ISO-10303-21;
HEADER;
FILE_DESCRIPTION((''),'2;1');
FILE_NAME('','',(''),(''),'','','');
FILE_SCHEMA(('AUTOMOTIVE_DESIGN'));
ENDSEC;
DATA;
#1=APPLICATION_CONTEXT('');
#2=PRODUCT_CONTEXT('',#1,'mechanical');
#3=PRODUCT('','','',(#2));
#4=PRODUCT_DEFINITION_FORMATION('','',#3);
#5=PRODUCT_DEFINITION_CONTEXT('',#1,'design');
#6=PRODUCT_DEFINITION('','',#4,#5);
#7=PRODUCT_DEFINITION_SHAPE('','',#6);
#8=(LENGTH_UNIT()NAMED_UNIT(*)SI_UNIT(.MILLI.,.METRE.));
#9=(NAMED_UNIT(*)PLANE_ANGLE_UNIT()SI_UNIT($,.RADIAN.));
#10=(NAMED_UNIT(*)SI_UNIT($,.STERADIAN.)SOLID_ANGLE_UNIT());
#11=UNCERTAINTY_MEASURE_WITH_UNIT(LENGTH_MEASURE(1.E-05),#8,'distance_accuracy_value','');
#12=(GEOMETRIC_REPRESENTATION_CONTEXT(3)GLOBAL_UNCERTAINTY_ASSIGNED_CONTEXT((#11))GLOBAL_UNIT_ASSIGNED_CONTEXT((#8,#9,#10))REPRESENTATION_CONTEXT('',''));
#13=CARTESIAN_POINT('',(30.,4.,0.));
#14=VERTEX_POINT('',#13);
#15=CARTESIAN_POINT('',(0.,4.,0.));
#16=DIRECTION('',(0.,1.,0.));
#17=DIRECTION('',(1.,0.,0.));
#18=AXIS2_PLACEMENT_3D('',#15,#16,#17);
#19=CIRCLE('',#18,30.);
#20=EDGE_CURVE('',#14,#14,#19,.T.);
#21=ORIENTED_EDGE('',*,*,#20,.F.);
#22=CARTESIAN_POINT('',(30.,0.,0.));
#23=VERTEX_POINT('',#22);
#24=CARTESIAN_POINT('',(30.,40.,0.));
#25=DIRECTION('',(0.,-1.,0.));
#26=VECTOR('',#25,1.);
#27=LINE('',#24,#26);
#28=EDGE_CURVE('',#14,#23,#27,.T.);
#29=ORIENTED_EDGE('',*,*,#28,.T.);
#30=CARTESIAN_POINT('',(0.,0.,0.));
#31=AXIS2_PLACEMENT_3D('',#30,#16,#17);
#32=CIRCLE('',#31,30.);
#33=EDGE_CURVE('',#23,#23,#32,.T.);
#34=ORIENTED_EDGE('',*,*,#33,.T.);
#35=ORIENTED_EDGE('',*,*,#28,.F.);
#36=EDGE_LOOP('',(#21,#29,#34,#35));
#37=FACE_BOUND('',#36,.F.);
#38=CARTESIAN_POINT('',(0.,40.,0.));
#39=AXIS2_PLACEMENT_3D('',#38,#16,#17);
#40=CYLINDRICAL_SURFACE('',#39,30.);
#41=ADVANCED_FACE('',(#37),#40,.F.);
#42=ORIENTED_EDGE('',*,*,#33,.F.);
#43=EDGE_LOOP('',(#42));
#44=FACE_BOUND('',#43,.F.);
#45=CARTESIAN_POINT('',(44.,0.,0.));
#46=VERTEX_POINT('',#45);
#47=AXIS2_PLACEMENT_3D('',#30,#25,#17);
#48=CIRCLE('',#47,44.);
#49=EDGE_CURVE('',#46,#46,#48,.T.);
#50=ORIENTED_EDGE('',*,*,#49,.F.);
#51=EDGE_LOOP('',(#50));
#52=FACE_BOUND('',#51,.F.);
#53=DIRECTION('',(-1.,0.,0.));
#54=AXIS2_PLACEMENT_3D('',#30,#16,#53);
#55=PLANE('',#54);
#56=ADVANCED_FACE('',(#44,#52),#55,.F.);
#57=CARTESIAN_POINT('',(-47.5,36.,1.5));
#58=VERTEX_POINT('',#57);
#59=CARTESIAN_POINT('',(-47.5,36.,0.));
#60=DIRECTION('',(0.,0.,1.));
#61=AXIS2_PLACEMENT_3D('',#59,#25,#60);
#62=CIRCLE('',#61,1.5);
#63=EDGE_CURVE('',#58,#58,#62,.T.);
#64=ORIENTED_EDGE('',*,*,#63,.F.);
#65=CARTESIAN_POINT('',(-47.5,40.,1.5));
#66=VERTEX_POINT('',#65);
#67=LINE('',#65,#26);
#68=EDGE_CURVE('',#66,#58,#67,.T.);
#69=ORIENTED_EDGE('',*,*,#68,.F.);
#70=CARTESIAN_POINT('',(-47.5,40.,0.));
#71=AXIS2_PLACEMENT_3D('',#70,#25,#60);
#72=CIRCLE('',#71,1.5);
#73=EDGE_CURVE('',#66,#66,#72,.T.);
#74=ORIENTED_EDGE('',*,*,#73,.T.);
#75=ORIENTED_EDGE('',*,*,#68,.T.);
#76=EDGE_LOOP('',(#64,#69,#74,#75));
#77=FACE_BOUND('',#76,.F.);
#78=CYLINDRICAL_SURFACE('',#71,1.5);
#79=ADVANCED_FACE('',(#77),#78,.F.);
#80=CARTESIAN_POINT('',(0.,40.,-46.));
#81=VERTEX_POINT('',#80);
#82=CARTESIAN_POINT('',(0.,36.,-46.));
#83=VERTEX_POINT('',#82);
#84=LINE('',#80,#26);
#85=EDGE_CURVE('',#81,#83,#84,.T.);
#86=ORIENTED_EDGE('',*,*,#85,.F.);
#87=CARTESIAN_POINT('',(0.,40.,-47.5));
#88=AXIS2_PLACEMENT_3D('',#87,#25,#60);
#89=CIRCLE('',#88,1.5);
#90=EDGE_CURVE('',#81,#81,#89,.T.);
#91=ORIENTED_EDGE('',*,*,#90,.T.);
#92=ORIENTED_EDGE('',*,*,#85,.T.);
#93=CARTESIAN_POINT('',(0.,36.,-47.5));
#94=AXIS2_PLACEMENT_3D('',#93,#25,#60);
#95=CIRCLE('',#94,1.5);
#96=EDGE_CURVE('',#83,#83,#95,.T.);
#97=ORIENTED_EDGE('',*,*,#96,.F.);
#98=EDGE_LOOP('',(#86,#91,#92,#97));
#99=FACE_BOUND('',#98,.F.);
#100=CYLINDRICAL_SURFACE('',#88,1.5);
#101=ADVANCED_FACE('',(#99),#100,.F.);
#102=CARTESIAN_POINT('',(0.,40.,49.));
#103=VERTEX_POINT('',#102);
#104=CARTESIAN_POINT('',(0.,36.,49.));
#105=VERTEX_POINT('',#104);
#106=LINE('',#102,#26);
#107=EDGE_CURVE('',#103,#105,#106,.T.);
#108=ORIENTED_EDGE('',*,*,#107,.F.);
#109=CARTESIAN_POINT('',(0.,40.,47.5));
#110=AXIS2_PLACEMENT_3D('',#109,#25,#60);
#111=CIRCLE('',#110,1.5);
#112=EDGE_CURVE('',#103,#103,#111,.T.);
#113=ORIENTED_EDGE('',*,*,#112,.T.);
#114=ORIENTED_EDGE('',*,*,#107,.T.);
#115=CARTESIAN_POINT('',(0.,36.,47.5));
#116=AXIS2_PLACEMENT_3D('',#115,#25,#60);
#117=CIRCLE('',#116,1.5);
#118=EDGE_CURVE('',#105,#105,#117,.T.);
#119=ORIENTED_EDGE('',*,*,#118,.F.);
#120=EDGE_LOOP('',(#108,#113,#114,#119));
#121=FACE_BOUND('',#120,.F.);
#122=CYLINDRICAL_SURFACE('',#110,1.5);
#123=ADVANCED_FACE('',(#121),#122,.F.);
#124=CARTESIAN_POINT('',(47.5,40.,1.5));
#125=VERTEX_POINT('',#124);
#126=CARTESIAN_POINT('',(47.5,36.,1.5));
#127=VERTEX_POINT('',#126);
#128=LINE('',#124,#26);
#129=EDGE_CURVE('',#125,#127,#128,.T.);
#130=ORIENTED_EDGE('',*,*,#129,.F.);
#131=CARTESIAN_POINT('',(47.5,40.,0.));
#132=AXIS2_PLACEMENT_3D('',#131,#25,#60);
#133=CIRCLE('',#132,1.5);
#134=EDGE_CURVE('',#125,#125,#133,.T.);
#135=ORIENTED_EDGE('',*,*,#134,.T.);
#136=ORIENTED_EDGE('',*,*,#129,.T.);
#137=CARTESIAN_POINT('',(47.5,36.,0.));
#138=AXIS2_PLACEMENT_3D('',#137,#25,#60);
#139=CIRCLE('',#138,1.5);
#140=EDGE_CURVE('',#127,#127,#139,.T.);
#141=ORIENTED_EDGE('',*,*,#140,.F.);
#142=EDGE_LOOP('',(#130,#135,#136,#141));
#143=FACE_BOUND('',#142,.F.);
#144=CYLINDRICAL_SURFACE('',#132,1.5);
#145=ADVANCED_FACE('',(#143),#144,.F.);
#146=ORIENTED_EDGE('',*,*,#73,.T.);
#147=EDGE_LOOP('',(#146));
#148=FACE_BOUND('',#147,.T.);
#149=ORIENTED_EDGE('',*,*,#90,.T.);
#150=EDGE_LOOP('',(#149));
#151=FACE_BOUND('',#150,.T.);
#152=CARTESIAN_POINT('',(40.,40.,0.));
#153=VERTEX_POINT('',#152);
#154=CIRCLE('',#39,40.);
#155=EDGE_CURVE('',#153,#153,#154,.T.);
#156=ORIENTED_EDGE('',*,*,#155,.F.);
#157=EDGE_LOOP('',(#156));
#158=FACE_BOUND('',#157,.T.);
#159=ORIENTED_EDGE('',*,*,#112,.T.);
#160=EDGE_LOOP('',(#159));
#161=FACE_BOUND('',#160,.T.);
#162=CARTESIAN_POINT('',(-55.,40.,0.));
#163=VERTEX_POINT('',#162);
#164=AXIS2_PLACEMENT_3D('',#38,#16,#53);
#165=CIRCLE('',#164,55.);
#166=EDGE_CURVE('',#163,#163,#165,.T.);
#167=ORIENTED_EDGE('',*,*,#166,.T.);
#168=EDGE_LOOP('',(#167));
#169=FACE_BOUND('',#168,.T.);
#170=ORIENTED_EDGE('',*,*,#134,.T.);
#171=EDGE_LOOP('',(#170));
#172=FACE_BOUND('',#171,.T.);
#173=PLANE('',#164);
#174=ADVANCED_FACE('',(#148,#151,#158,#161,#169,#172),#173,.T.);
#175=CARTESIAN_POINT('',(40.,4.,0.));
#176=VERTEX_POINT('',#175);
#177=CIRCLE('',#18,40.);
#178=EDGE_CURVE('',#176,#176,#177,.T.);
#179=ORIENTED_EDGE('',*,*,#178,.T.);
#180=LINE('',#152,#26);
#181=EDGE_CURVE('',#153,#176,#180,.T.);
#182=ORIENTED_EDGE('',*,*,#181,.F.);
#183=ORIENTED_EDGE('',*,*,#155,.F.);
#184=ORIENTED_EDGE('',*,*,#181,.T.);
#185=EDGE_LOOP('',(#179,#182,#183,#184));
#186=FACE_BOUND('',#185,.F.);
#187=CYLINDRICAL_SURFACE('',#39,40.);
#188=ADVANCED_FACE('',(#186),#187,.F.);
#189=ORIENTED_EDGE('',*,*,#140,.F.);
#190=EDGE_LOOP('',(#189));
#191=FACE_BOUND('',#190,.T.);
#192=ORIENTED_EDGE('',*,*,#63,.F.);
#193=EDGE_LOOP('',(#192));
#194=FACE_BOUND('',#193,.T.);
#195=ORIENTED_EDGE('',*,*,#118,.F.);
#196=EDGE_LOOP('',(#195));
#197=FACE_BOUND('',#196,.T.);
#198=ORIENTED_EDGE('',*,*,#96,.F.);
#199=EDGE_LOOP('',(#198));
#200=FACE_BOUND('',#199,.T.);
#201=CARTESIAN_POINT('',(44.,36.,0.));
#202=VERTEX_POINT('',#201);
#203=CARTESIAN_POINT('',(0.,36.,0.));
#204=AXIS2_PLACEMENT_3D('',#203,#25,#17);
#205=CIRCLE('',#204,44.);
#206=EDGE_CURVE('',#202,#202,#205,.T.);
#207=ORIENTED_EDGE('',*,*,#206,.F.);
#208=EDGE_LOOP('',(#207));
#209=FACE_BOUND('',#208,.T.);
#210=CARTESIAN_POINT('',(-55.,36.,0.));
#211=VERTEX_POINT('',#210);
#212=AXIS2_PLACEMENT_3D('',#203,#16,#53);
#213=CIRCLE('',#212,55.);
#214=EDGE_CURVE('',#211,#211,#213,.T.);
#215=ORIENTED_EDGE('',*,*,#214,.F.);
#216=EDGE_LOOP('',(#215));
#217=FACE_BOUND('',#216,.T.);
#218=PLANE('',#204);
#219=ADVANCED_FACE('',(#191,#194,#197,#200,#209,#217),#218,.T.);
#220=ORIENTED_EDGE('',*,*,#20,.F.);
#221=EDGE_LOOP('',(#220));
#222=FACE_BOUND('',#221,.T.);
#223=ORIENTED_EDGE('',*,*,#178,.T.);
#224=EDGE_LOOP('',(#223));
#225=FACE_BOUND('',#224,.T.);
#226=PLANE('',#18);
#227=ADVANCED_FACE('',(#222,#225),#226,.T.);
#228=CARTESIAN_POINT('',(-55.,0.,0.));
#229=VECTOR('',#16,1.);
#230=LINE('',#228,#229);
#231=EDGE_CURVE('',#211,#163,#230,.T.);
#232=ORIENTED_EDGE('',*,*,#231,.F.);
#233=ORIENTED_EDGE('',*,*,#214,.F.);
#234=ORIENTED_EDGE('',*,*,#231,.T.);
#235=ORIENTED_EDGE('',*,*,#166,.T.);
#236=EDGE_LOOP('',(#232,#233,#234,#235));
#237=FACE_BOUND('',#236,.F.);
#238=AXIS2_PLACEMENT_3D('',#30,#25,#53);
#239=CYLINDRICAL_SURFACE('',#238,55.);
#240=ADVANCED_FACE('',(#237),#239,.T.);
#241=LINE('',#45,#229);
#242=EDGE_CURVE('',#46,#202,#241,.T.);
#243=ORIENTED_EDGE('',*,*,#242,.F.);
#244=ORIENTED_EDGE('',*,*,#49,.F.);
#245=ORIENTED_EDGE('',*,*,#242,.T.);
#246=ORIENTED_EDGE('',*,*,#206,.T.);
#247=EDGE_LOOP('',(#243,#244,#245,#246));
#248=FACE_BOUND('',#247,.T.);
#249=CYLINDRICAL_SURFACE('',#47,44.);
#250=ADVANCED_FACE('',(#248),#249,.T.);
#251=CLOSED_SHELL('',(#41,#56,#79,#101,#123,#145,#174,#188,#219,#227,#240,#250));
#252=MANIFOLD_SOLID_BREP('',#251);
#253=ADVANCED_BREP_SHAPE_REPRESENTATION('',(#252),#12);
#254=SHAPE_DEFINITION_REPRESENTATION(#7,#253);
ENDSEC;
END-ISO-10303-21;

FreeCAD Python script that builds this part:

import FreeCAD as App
import Part
import Sketcher
Q = App.Units.Quantity

doc = App.newDocument("Part")
body = doc.addObject("PartDesign::Body", "Body")

# Sketch on XZ plane
sketch1 = doc.addObject("Sketcher::SketchObject", "Sketch")
body.addObject(sketch1)
sketch1.AttachmentSupport = (doc.XZ_Plane, [""])
sketch1.MapMode = "FlatFace"
sketch1.addGeometry(Part.Circle(App.Vector(0, 0, 0), App.Vector(0, 0, 1), 55), False)
sketch1.addConstraint([
    Sketcher.Constraint("Coincident", 0, 3, -1, 1),
    Sketcher.Constraint("Diameter", 0, Q("110 mm")),
])
pad1 = doc.addObject("PartDesign::Pad", "Pad")
body.addObject(pad1)
pad1.Profile = sketch1
pad1.Length = 40
pad1.Reversed = True

# Sketch on XZ plane
sketch2 = doc.addObject("Sketcher::SketchObject", "Sketch001")
body.addObject(sketch2)
sketch2.AttachmentSupport = (doc.XZ_Plane, [""])
sketch2.MapMode = "FlatFace"
sketch2.addGeometry([
    Part.Circle(App.Vector(0, 0, 0), App.Vector(0, 0, 1), 55),
    Part.Circle(App.Vector(0, 0, 0), App.Vector(0, 0, 1), 44),
], False)
sketch2.addConstraint([
    Sketcher.Constraint("Coincident", 0, 3, -1, 1),
    Sketcher.Constraint("Coincident", 1, 3, -1, 1),
    Sketcher.Constraint("Diameter", 1, Q("88 mm")),
    Sketcher.Constraint("Diameter", 0, Q("110 mm")),
])
pocket1 = doc.addObject("PartDesign::Pocket", "Pocket")
body.addObject(pocket1)
pocket1.Profile = sketch2
pocket1.Length = 36

# Sketch on XZ plane
sketch3 = doc.addObject("Sketcher::SketchObject", "Sketch002")
body.addObject(sketch3)
sketch3.AttachmentSupport = (doc.XZ_Plane, [""])
sketch3.MapMode = "FlatFace"
sketch3.AttachmentOffset = App.Placement(App.Vector(0, 0, -40), App.Rotation())
sketch3.addGeometry(Part.Circle(App.Vector(0, 0, 0), App.Vector(0, 0, 1), 30), False)
sketch3.addConstraint([
    Sketcher.Constraint("Coincident", 0, 3, -1, 1),
    Sketcher.Constraint("Diameter", 0, Q("60 mm")),
])
pocket2 = doc.addObject("PartDesign::Pocket", "Pocket001")
body.addObject(pocket2)
pocket2.Profile = sketch3
pocket2.Type = "ThroughAll"
pocket2.Reversed = True

# Sketch on XZ plane
sketch4 = doc.addObject("Sketcher::SketchObject", "Sketch003")
body.addObject(sketch4)
sketch4.AttachmentSupport = (doc.XZ_Plane, [""])
sketch4.MapMode = "FlatFace"
sketch4.AttachmentOffset = App.Placement(App.Vector(0, 0, -40), App.Rotation())
sketch4.addGeometry(Part.Circle(App.Vector(0, 0, 0), App.Vector(0, 0, 1), 40), False)
sketch4.addConstraint([
    Sketcher.Constraint("Coincident", 0, 3, -1, 1),
    Sketcher.Constraint("Diameter", 0, Q("80 mm")),
])
pocket3 = doc.addObject("PartDesign::Pocket", "Pocket002")
body.addObject(pocket3)
pocket3.Profile = sketch4
pocket3.Length = 36
pocket3.Reversed = True

# Sketch on XZ plane
sketch5 = doc.addObject("Sketcher::SketchObject", "Sketch004")
body.addObject(sketch5)
sketch5.AttachmentSupport = (doc.XZ_Plane, [""])
sketch5.MapMode = "FlatFace"
sketch5.AttachmentOffset = App.Placement(App.Vector(0, 0, -40), App.Rotation())
sketch5.addGeometry([
    Part.Circle(App.Vector(-47.5, 0, 0), App.Vector(0, 0, 1), 1.5),
    Part.Circle(App.Vector(0, 47.5, 0), App.Vector(0, 0, 1), 1.5),
    Part.Circle(App.Vector(47.5, 0, 0), App.Vector(0, 0, 1), 1.5),
    Part.Circle(App.Vector(0, -47.5, 0), App.Vector(0, 0, 1), 1.5),
], False)
sketch5.addConstraint([
    Sketcher.Constraint("Equal", 0, 1),
    Sketcher.Constraint("Equal", 1, 2),
    Sketcher.Constraint("Equal", 2, 3),
    Sketcher.Constraint("Symmetric", 0, 3, 2, 3, -1, 1),
    Sketcher.Constraint("Symmetric", 1, 3, 3, 3, -1, 1),
    Sketcher.Constraint("PointOnObject", 0, 3, -1),
    Sketcher.Constraint("PointOnObject", 1, 3, -2),
    Sketcher.Constraint("Diameter", 0, Q("3 mm")),
    Sketcher.Constraint("DistanceX", 0, 3, 2, 3, Q("95 mm")),
    Sketcher.Constraint("DistanceY", 3, 3, 1, 3, Q("95 mm")),
])
doc.recompute()
hole = doc.addObject("PartDesign::Hole", "Hole")
body.addObject(hole)
hole.Profile = sketch5
hole.ThreadType = "None"
hole.Diameter = 3
hole.DepthType = "ThroughAll"
hole.Reversed = True

doc.recompute()
